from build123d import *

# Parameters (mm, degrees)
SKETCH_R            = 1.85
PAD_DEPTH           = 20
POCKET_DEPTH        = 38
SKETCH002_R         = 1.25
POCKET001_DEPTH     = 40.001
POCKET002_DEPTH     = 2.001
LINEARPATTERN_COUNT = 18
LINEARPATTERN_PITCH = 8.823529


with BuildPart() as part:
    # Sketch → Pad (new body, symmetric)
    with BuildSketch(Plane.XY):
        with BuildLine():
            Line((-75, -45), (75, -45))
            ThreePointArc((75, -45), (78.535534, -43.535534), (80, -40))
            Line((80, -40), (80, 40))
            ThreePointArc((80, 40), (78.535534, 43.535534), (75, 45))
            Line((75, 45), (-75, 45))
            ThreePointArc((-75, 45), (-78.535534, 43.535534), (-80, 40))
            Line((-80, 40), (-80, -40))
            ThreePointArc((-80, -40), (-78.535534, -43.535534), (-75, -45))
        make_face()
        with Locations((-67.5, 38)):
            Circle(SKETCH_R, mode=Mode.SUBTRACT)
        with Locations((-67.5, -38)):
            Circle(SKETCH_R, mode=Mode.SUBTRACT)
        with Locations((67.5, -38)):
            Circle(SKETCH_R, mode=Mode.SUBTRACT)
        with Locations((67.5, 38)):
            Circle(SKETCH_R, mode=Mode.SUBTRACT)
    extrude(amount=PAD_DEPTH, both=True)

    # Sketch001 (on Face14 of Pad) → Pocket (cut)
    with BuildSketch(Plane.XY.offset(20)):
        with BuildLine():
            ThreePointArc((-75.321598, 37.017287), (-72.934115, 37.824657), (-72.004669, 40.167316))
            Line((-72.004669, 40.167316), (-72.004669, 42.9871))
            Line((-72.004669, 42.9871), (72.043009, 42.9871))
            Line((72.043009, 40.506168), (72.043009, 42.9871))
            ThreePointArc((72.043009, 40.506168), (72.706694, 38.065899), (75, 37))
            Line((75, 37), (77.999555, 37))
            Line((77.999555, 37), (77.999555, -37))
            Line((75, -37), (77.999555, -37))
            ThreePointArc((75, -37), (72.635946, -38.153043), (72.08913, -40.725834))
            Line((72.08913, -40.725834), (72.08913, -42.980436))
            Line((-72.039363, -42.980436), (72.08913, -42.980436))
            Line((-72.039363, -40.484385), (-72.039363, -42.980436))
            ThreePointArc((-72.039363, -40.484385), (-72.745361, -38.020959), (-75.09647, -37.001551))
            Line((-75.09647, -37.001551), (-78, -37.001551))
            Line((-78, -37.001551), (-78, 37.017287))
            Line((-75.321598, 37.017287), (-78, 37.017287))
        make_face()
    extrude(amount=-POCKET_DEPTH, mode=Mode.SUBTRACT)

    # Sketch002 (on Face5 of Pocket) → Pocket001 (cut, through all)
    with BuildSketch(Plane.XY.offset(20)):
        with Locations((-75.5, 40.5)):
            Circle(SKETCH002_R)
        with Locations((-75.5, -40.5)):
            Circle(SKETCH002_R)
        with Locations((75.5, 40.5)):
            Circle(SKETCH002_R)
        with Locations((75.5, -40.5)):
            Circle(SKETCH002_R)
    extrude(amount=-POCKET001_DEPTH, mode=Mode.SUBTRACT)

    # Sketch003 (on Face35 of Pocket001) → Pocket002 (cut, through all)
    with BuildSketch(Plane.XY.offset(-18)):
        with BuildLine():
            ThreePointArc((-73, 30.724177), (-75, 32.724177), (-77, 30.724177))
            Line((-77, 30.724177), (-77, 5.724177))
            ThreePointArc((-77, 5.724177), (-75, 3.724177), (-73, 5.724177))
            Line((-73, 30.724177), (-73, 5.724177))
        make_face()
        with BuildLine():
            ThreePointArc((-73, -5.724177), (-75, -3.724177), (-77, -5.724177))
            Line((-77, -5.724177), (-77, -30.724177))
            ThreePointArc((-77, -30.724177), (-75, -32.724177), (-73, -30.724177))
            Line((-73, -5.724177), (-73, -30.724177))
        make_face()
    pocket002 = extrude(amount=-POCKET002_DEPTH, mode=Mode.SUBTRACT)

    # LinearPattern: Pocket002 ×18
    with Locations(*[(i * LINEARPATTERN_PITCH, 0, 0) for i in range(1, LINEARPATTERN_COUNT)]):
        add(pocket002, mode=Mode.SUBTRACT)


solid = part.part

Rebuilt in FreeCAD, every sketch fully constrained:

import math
import FreeCAD as App
import Part
import Sketcher
from FreeCAD import Vector
Q = App.Units.Quantity

doc = App.newDocument("Part")
body = doc.addObject("PartDesign::Body", "Body")

# Sketch on XY plane
sketch1 = body.newObject("Sketcher::SketchObject", "Sketch")
sketch1.AttachmentSupport = (doc.getObject("XY_Plane"), [""])
sketch1.MapMode = "FlatFace"
sketch1.addGeometry([
    Part.LineSegment(Vector(-75, -45, 0), Vector(75, -45, 0)),  # 0
    Part.ArcOfCircle(Part.Circle(Vector(75, -40, 0), Vector(0, 0, 1), 5), math.radians(-90), math.radians(0)),  # 1
    Part.LineSegment(Vector(80, -40, 0), Vector(80, 40, 0)),  # 2
    Part.ArcOfCircle(Part.Circle(Vector(75, 40, 0), Vector(0, 0, 1), 5), math.radians(0), math.radians(90)),  # 3
    Part.LineSegment(Vector(75, 45, 0), Vector(-75, 45, 0)),  # 4
    Part.ArcOfCircle(Part.Circle(Vector(-75, 40, 0), Vector(0, 0, 1), 5), math.radians(90), math.radians(180)),  # 5
    Part.LineSegment(Vector(-80, 40, 0), Vector(-80, -40, 0)),  # 6
    Part.ArcOfCircle(Part.Circle(Vector(-75, -40, 0), Vector(0, 0, 1), 5), math.radians(180), math.radians(270)),  # 7
    Part.Circle(Vector(-67.5, -38, 0), Vector(0, 0, 1), 1.9),  # 8
    Part.Circle(Vector(67.5, -38, 0), Vector(0, 0, 1), 1.9),  # 9
    Part.Circle(Vector(-67.5, 38, 0), Vector(0, 0, 1), 1.9),  # 10
    Part.Circle(Vector(67.5, 38, 0), Vector(0, 0, 1), 1.9),  # 11
], False)
sketch1.addConstraint([
    Sketcher.Constraint("Tangent", 0, 2, 1, 1),
    Sketcher.Constraint("Tangent", 1, 2, 2, 1),
    Sketcher.Constraint("Tangent", 2, 2, 3, 1),
    Sketcher.Constraint("Tangent", 3, 2, 4, 1),
    Sketcher.Constraint("Tangent", 4, 2, 5, 1),
    Sketcher.Constraint("Tangent", 5, 2, 6, 1),
    Sketcher.Constraint("Tangent", 6, 2, 7, 1),
    Sketcher.Constraint("Tangent", 7, 2, 0, 1),
    Sketcher.Constraint("Horizontal", 0),
    Sketcher.Constraint("Vertical", 2),
    Sketcher.Constraint("Horizontal", 4),
    Sketcher.Constraint("Vertical", 6),
    Sketcher.Constraint("Equal", 1, 3),
    Sketcher.Constraint("Equal", 3, 5),
    Sketcher.Constraint("Equal", 5, 7),
    Sketcher.Constraint("Equal", 8, 9),
    Sketcher.Constraint("Equal", 9, 10),
    Sketcher.Constraint("Equal", 10, 11),
    Sketcher.Constraint("Symmetric", 1, 3, 5, 3, -1, 1),
    Sketcher.Constraint("Symmetric", 9, 3, 10, 3, -1, 1),
    Sketcher.Constraint("Symmetric", 8, 3, 11, 3, -1, 1),
    Sketcher.Constraint("Symmetric", 8, 3, 9, 3, -2),
    Sketcher.Constraint("Radius", 1, Q("5 mm")),
    Sketcher.Constraint("Diameter", 8, Q("3.7 mm")),
    Sketcher.Constraint("DistanceX", 0, 1, 0, 2, Q("150 mm")),
    Sketcher.Constraint("DistanceY", 2, 1, 2, 2, Q("80 mm")),
    Sketcher.Constraint("DistanceY", 8, 3, -1, 1, Q("38 mm")),
    Sketcher.Constraint("DistanceX", 8, 3, 9, 3, Q("135 mm")),
])
pad1 = body.newObject("PartDesign::Pad", "Pad")
pad1.Profile = sketch1
pad1.Length = 40
pad1.Midplane = True

# Sketch on XY plane
sketch2 = body.newObject("Sketcher::SketchObject", "Sketch001")
sketch2.AttachmentSupport = (doc.getObject("XY_Plane"), [""])
sketch2.MapMode = "FlatFace"
sketch2.AttachmentOffset = App.Placement(Vector(0, 0, 20), App.Rotation())
sketch2.addGeometry([
    Part.ArcOfCircle(Part.Circle(Vector(-75.000001, 40.000001, 0), Vector(0, 0, 1), 3.000002), math.radians(-96.153865), math.radians(3.197129)),  # 0
    Part.LineSegment(Vector(-75.321598, 37.017287, 0), Vector(-78, 37.017287, 0)),  # 1
    Part.LineSegment(Vector(-78, 37.017287, 0), Vector(-78, -37.001551, 0)),  # 2
    Part.LineSegment(Vector(-78, -37.001551, 0), Vector(-75.09647, -37.001551, 0)),  # 3
    Part.ArcOfCircle(Part.Circle(Vector(-75.000001, -40, 0), Vector(0, 0, 1), 3.000001), math.radians(-9.291741), math.radians(91.842747)),  # 4
    Part.LineSegment(Vector(-72.039363, -40.484385, 0), Vector(-72.039363, -42.980436, 0)),  # 5
    Part.LineSegment(Vector(-72.039363, -42.980436, 0), Vector(72.08913, -42.980436, 0)),  # 6
    Part.LineSegment(Vector(72.08913, -42.980436, 0), Vector(72.08913, -40.725834, 0)),  # 7
    Part.ArcOfCircle(Part.Circle(Vector(74.999999, -39.999999, 0), Vector(0, 0, 1), 2.999999), math.radians(89.999989), math.radians(194.001359)),  # 8
    Part.LineSegment(Vector(75, -37, 0), Vector(77.999555, -37, 0)),  # 9
    Part.LineSegment(Vector(77.999555, -37, 0), Vector(77.999555, 37, 0)),  # 10
    Part.LineSegment(Vector(77.999555, 37, 0), Vector(75, 37, 0)),  # 11
    Part.ArcOfCircle(Part.Circle(Vector(75.000001, 40.000001, 0), Vector(0, 0, 1), 3.000001), math.radians(170.286455), math.radians(269.99999)),  # 12
    Part.LineSegment(Vector(72.043009, 40.506168, 0), Vector(72.043009, 42.9871, 0)),  # 13
    Part.LineSegment(Vector(72.043009, 42.9871, 0), Vector(-72.004669, 42.9871, 0)),  # 14
    Part.LineSegment(Vector(-72.004669, 42.9871, 0), Vector(-72.004669, 40.167316, 0)),  # 15
], False)
sketch2.addConstraint([
    Sketcher.Constraint("Coincident", 0, 1, 1, 1),
    Sketcher.Constraint("Coincident", 1, 2, 2, 1),
    Sketcher.Constraint("Coincident", 2, 2, 3, 1),
    Sketcher.Constraint("Coincident", 3, 2, 4, 2),
    Sketcher.Constraint("Coincident", 4, 1, 5, 1),
    Sketcher.Constraint("Coincident", 5, 2, 6, 1),
    Sketcher.Constraint("Coincident", 6, 2, 7, 1),
    Sketcher.Constraint("Coincident", 7, 2, 8, 2),
    Sketcher.Constraint("Coincident", 8, 1, 9, 1),
    Sketcher.Constraint("Coincident", 9, 2, 10, 1),
    Sketcher.Constraint("Coincident", 10, 2, 11, 1),
    Sketcher.Constraint("Coincident", 11, 2, 12, 2),
    Sketcher.Constraint("Coincident", 12, 1, 13, 1),
    Sketcher.Constraint("Coincident", 13, 2, 14, 1),
    Sketcher.Constraint("Coincident", 14, 2, 15, 1),
    Sketcher.Constraint("Coincident", 15, 2, 0, 2),
    Sketcher.Constraint("Horizontal", 1),
    Sketcher.Constraint("Vertical", 2),
    Sketcher.Constraint("Horizontal", 3),
    Sketcher.Constraint("Vertical", 5),
    Sketcher.Constraint("Horizontal", 6),
    Sketcher.Constraint("Vertical", 7),
    Sketcher.Constraint("Horizontal", 9),
    Sketcher.Constraint("Vertical", 10),
    Sketcher.Constraint("Horizontal", 11),
    Sketcher.Constraint("Vertical", 13),
    Sketcher.Constraint("Horizontal", 14),
    Sketcher.Constraint("Vertical", 15),
    Sketcher.Constraint("Radius", 0, Q("3.000002 mm")),
    Sketcher.Constraint("Radius", 4, Q("3.000001 mm")),
    Sketcher.Constraint("Radius", 8, Q("2.999999 mm")),
    Sketcher.Constraint("Radius", 12, Q("3.000001 mm")),
    Sketcher.Constraint("DistanceY", 10, 1, 10, 2, Q("74 mm")),
    Sketcher.Constraint("DistanceX", 0, 3, -1, 1, Q("75.000001 mm")),
    Sketcher.Constraint("DistanceY", -1, 1, 0, 3, Q("40.000001 mm")),
    Sketcher.Constraint("DistanceX", 4, 3, -1, 1, Q("75.000001 mm")),
    Sketcher.Constraint("DistanceY", 4, 3, -1, 1, Q("40 mm")),
    Sketcher.Constraint("DistanceX", -1, 1, 8, 3, Q("74.999999 mm")),
    Sketcher.Constraint("DistanceY", 8, 3, -1, 1, Q("39.999999 mm")),
    Sketcher.Constraint("DistanceX", -1, 1, 12, 3, Q("75.000001 mm")),
    Sketcher.Constraint("DistanceX", 1, 2, -1, 1, Q("78 mm")),
    Sketcher.Constraint("DistanceX", -1, 1, 8, 1, Q("75 mm")),
    Sketcher.Constraint("DistanceX", -1, 1, 11, 2, Q("75 mm")),
    Sketcher.Constraint("DistanceY", 7, 1, 7, 2, Q("2.254602 mm")),
    Sketcher.Constraint("DistanceX", 3, 1, 3, 2, Q("2.90353 mm")),
    Sketcher.Constraint("DistanceX", 14, 2, 14, 1, Q("144.047678 mm")),
    Sketcher.Constraint("DistanceY", 2, 2, 2, 1, Q("74.018838 mm")),
    Sketcher.Constraint("DistanceY", 5, 2, 5, 1, Q("2.496051 mm")),
    Sketcher.Constraint("DistanceY", 13, 1, 13, 2, Q("2.480932 mm")),
    Sketcher.Constraint("DistanceY", -1, 1, 13, 2, Q("42.9871 mm")),
    Sketcher.Constraint("DistanceX", 6, 1, 6, 2, Q("144.128493 mm")),
    Sketcher.Constraint("DistanceX", 9, 1, 9, 2, Q("2.999555 mm")),
])
pocket1 = body.newObject("PartDesign::Pocket", "Pocket")
pocket1.Profile = sketch2
pocket1.Length = 38

# Sketch on XY plane
sketch3 = body.newObject("Sketcher::SketchObject", "Sketch002")
sketch3.AttachmentSupport = (doc.getObject("XY_Plane"), [""])
sketch3.MapMode = "FlatFace"
sketch3.AttachmentOffset = App.Placement(Vector(0, 0, 20), App.Rotation())
sketch3.addGeometry([
    Part.Circle(Vector(-75.5, 40.5, 0), Vector(0, 0, 1), 1.2),
    Part.Circle(Vector(-75.5, -40.5, 0), Vector(0, 0, 1), 1.2),
    Part.Circle(Vector(75.5, 40.5, 0), Vector(0, 0, 1), 1.2),
    Part.Circle(Vector(75.5, -40.5, 0), Vector(0, 0, 1), 1.2),
], False)
sketch3.addConstraint([
    Sketcher.Constraint("Equal", 0, 1),
    Sketcher.Constraint("Equal", 1, 2),
    Sketcher.Constraint("Equal", 2, 3),
    Sketcher.Constraint("Symmetric", 1, 3, 2, 3, -1, 1),
    Sketcher.Constraint("Symmetric", 0, 3, 3, 3, -1, 1),
    Sketcher.Constraint("Symmetric", 0, 3, 2, 3, -2),
    Sketcher.Constraint("Diameter", 0, Q("2.5 mm")),
    Sketcher.Constraint("DistanceY", 1, 3, 0, 3, Q("81 mm")),
    Sketcher.Constraint("DistanceX", 0, 3, 2, 3, Q("151 mm")),
])
pocket2 = body.newObject("PartDesign::Pocket", "Pocket001")
pocket2.Profile = sketch3
pocket2.Type = "ThroughAll"

# Sketch on XY plane
sketch4 = body.newObject("Sketcher::SketchObject", "Sketch003")
sketch4.AttachmentSupport = (doc.getObject("XY_Plane"), [""])
sketch4.MapMode = "FlatFace"
sketch4.AttachmentOffset = App.Placement(Vector(0, 0, -18), App.Rotation())
sketch4.addGeometry([
    Part.ArcOfCircle(Part.Circle(Vector(-75, 30.7, 0), Vector(0, 0, 1), 2), math.radians(0), math.radians(180)),  # 0
    Part.LineSegment(Vector(-77, 30.7, 0), Vector(-77, 5.7, 0)),  # 1
    Part.ArcOfCircle(Part.Circle(Vector(-75, 5.7, 0), Vector(0, 0, 1), 2), math.radians(180), math.radians(360)),  # 2
    Part.LineSegment(Vector(-73, 5.7, 0), Vector(-73, 30.7, 0)),  # 3
    Part.ArcOfCircle(Part.Circle(Vector(-75, -5.7, 0), Vector(0, 0, 1), 2), math.radians(0), math.radians(180)),  # 4
    Part.LineSegment(Vector(-77, -5.7, 0), Vector(-77, -30.7, 0)),  # 5
    Part.ArcOfCircle(Part.Circle(Vector(-75, -30.7, 0), Vector(0, 0, 1), 2), math.radians(180), math.radians(360)),  # 6
    Part.LineSegment(Vector(-73, -30.7, 0), Vector(-73, -5.7, 0)),  # 7
], False)
sketch4.addConstraint([
    Sketcher.Constraint("Tangent", 0, 2, 1, 1),
    Sketcher.Constraint("Tangent", 1, 2, 2, 1),
    Sketcher.Constraint("Tangent", 2, 2, 3, 1),
    Sketcher.Constraint("Tangent", 3, 2, 0, 1),
    Sketcher.Constraint("Tangent", 4, 2, 5, 1),
    Sketcher.Constraint("Tangent", 5, 2, 6, 1),
    Sketcher.Constraint("Tangent", 6, 2, 7, 1),
    Sketcher.Constraint("Tangent", 7, 2, 4, 1),
    Sketcher.Constraint("Vertical", 1),
    Sketcher.Constraint("Vertical", 3),
    Sketcher.Constraint("Vertical", 5),
    Sketcher.Constraint("Vertical", 7),
    Sketcher.Constraint("Equal", 2, 4),
    Sketcher.Constraint("Symmetric", 2, 3, 4, 3, -1),
    Sketcher.Constraint("Equal", 3, 5),
    Sketcher.Constraint("Radius", 0, Q("2 mm")),
    Sketcher.Constraint("DistanceY", 1, 2, 1, 1, Q("25 mm")),
    Sketcher.Constraint("DistanceX", 0, 3, -1, 1, Q("75 mm")),
    Sketcher.Constraint("DistanceY", -1, 1, 0, 3, Q("30.724177 mm")),
])
pocket3 = body.newObject("PartDesign::Pocket", "Pocket002")
pocket3.Profile = sketch4
pocket3.Type = "ThroughAll"
doc.recompute()

linearpattern = body.newObject("PartDesign::LinearPattern", "LinearPattern")
linearpattern.Originals = [pocket3]
linearpattern.Direction = (doc.getObject("X_Axis"), [""])
linearpattern.Mode = "offset"
linearpattern.Offset = 8.823529
linearpattern.Occurrences = 18
body.Tip = linearpattern

doc.recompute()
